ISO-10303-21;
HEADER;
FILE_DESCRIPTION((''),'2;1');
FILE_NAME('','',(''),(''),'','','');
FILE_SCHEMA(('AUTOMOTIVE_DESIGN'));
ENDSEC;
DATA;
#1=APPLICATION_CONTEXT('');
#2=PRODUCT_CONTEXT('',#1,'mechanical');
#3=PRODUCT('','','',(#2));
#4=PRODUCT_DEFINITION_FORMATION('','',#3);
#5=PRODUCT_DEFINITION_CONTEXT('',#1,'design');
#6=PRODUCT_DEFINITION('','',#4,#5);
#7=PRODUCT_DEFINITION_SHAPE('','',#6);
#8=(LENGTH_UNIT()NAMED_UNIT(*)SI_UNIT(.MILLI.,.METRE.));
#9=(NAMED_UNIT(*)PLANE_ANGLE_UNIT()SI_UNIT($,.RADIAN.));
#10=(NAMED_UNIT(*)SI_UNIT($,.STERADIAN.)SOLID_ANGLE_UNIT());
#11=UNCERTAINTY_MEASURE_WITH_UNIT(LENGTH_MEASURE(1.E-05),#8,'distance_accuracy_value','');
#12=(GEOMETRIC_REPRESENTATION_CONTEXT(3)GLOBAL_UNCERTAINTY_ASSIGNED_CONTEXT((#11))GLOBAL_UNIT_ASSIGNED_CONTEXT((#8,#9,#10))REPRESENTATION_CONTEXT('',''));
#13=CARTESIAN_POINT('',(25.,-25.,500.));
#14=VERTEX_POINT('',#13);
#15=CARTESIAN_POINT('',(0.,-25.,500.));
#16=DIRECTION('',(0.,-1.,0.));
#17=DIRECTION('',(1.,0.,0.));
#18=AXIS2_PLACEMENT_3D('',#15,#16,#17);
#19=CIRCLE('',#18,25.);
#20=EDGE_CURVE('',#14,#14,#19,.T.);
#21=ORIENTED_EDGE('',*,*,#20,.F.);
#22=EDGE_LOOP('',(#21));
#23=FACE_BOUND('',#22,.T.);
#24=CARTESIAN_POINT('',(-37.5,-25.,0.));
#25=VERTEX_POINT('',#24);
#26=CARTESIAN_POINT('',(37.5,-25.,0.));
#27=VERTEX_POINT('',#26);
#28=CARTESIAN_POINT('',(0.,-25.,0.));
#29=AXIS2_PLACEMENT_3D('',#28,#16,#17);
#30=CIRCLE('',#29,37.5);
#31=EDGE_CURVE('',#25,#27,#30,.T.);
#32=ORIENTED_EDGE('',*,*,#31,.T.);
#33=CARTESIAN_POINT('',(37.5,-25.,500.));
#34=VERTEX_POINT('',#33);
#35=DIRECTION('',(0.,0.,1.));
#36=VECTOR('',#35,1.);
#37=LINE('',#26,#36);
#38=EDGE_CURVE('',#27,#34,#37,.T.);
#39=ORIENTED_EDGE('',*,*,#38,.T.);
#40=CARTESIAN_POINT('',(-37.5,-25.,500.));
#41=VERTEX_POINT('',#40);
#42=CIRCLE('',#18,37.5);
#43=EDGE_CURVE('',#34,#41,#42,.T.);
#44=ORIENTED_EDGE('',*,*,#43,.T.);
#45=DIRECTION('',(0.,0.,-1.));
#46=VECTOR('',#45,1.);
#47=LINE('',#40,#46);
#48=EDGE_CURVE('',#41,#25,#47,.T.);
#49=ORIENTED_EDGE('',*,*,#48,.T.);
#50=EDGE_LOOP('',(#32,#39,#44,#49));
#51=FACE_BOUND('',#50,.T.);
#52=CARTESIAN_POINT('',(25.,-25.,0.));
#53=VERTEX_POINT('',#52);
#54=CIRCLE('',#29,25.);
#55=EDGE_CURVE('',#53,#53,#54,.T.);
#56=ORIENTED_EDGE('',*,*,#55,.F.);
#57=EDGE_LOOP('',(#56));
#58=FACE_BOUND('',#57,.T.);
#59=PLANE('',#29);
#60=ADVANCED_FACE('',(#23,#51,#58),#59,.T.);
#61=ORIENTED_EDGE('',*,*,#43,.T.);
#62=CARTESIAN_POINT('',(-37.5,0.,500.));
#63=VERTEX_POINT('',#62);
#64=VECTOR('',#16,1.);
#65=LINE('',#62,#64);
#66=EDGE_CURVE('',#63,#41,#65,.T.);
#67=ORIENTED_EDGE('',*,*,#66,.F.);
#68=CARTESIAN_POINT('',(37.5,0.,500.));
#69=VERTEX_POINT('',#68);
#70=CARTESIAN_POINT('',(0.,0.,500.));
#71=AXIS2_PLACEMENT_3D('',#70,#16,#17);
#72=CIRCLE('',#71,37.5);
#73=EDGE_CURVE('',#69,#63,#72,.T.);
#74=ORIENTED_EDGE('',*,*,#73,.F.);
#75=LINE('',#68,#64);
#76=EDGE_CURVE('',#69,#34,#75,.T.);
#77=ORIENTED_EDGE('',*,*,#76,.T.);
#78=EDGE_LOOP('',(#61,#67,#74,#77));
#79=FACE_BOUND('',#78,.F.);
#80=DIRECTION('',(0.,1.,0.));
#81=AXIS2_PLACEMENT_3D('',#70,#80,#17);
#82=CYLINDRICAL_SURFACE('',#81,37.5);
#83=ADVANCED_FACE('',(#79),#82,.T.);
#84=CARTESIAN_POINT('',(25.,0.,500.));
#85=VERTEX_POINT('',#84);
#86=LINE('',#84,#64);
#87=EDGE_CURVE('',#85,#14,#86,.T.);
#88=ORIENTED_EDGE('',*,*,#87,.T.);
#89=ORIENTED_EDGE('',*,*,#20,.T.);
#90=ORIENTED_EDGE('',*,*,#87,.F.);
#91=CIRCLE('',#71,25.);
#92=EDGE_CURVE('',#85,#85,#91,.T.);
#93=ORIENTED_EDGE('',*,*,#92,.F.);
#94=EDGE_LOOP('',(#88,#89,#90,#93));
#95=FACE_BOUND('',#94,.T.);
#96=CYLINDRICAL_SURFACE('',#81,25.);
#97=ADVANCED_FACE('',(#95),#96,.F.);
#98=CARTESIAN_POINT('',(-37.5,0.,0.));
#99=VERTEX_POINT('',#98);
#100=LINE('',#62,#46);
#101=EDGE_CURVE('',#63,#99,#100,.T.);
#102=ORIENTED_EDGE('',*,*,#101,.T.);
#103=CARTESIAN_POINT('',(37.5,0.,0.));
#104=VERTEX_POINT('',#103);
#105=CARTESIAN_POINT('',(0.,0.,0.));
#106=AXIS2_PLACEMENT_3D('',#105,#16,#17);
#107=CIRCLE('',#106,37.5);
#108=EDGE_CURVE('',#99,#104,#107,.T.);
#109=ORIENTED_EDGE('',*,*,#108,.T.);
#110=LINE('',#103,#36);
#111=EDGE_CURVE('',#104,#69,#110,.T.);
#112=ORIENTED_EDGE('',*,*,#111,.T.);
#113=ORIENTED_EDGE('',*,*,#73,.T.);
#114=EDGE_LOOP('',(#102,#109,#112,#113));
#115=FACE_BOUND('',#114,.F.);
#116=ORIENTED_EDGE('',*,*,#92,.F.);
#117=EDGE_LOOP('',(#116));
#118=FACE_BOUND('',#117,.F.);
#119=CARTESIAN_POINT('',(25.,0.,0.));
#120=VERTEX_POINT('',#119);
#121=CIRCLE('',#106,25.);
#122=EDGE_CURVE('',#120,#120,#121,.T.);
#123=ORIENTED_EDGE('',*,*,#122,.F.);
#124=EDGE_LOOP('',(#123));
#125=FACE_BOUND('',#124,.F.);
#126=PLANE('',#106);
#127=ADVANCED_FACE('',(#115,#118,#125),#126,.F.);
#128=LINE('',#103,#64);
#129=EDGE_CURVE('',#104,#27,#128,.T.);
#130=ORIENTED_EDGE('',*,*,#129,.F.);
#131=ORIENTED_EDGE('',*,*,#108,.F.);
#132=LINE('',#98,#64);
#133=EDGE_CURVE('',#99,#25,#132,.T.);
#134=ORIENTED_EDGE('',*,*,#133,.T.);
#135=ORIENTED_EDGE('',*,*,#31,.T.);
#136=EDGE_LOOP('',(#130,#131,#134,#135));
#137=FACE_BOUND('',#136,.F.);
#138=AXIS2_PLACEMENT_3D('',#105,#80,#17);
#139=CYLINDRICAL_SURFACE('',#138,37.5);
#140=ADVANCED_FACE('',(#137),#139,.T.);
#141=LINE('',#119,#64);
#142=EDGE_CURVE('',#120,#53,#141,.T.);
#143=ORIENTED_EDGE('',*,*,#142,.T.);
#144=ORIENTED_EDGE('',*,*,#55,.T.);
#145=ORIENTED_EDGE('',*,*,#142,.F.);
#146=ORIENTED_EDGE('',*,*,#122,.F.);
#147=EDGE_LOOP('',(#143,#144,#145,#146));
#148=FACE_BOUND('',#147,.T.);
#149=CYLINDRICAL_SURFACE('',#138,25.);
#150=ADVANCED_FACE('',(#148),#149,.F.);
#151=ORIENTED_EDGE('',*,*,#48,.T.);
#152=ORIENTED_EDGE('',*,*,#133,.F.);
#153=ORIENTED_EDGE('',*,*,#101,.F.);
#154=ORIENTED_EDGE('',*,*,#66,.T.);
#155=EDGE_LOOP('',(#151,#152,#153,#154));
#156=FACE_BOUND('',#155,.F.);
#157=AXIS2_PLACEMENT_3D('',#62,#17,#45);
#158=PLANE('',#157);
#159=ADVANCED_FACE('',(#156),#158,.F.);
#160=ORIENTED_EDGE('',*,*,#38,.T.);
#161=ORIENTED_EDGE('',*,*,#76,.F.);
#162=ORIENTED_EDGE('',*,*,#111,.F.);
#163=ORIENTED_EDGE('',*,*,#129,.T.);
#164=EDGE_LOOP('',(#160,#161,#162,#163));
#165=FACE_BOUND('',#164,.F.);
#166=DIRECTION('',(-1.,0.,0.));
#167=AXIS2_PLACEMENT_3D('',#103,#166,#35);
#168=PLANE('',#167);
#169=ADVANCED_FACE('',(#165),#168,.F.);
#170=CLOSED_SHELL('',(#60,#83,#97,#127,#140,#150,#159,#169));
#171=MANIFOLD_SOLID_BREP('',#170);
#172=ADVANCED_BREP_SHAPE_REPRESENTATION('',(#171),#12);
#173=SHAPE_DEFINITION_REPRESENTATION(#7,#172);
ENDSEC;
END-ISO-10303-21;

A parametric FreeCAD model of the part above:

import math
import FreeCAD as App
import Part
import Sketcher
from FreeCAD import Vector
Q = App.Units.Quantity

doc = App.newDocument("Part")
body = doc.addObject("PartDesign::Body", "Body")

sketch1 = body.newObject("Sketcher::SketchObject", "Sketch")
sketch1.AttachmentSupport = (doc.getObject("XZ_Plane"), [""])
sketch1.MapMode = "FlatFace"
sketch1.addGeometry([
    Part.ArcOfCircle(Part.Circle(Vector(0, 0, 0), Vector(0, 0, 1), 37.5), math.radians(180), math.radians(360)),
    Part.LineSegment(Vector(37.5, 0, 0), Vector(37.5, 500, 0)),
    Part.ArcOfCircle(Part.Circle(Vector(0, 500, 0), Vector(0, 0, 1), 37.5), math.radians(0), math.radians(180)),
    Part.LineSegment(Vector(-37.5, 500, 0), Vector(-37.5, 0, 0)),
    Part.Circle(Vector(0, 0, 0), Vector(0, 0, 1), 25),
    Part.Circle(Vector(0, 500, 0), Vector(0, 0, 1), 25),
], False)
sketch1.addConstraint([
    Sketcher.Constraint("Tangent", 0, 2, 1, 1),
    Sketcher.Constraint("Tangent", 1, 2, 2, 1),
    Sketcher.Constraint("Tangent", 2, 2, 3, 1),
    Sketcher.Constraint("Tangent", 3, 2, 0, 1),
    Sketcher.Constraint("Vertical", 1),
    Sketcher.Constraint("Vertical", 3),
    Sketcher.Constraint("Coincident", 0, 3, -1, 1),
    Sketcher.Constraint("Coincident", 4, 3, -1, 1),
    Sketcher.Constraint("Coincident", 5, 3, 2, 3),
    Sketcher.Constraint("Equal", 4, 5),
    Sketcher.Constraint("Diameter", 4, Q("50 mm")),
    Sketcher.Constraint("Radius", 0, Q("37.5 mm")),
    Sketcher.Constraint("DistanceY", 1, 1, 1, 2, Q("500 mm")),
])
pad1 = body.newObject("PartDesign::Pad", "Pad")
pad1.Profile = sketch1
pad1.Length = 25

doc.recompute()
